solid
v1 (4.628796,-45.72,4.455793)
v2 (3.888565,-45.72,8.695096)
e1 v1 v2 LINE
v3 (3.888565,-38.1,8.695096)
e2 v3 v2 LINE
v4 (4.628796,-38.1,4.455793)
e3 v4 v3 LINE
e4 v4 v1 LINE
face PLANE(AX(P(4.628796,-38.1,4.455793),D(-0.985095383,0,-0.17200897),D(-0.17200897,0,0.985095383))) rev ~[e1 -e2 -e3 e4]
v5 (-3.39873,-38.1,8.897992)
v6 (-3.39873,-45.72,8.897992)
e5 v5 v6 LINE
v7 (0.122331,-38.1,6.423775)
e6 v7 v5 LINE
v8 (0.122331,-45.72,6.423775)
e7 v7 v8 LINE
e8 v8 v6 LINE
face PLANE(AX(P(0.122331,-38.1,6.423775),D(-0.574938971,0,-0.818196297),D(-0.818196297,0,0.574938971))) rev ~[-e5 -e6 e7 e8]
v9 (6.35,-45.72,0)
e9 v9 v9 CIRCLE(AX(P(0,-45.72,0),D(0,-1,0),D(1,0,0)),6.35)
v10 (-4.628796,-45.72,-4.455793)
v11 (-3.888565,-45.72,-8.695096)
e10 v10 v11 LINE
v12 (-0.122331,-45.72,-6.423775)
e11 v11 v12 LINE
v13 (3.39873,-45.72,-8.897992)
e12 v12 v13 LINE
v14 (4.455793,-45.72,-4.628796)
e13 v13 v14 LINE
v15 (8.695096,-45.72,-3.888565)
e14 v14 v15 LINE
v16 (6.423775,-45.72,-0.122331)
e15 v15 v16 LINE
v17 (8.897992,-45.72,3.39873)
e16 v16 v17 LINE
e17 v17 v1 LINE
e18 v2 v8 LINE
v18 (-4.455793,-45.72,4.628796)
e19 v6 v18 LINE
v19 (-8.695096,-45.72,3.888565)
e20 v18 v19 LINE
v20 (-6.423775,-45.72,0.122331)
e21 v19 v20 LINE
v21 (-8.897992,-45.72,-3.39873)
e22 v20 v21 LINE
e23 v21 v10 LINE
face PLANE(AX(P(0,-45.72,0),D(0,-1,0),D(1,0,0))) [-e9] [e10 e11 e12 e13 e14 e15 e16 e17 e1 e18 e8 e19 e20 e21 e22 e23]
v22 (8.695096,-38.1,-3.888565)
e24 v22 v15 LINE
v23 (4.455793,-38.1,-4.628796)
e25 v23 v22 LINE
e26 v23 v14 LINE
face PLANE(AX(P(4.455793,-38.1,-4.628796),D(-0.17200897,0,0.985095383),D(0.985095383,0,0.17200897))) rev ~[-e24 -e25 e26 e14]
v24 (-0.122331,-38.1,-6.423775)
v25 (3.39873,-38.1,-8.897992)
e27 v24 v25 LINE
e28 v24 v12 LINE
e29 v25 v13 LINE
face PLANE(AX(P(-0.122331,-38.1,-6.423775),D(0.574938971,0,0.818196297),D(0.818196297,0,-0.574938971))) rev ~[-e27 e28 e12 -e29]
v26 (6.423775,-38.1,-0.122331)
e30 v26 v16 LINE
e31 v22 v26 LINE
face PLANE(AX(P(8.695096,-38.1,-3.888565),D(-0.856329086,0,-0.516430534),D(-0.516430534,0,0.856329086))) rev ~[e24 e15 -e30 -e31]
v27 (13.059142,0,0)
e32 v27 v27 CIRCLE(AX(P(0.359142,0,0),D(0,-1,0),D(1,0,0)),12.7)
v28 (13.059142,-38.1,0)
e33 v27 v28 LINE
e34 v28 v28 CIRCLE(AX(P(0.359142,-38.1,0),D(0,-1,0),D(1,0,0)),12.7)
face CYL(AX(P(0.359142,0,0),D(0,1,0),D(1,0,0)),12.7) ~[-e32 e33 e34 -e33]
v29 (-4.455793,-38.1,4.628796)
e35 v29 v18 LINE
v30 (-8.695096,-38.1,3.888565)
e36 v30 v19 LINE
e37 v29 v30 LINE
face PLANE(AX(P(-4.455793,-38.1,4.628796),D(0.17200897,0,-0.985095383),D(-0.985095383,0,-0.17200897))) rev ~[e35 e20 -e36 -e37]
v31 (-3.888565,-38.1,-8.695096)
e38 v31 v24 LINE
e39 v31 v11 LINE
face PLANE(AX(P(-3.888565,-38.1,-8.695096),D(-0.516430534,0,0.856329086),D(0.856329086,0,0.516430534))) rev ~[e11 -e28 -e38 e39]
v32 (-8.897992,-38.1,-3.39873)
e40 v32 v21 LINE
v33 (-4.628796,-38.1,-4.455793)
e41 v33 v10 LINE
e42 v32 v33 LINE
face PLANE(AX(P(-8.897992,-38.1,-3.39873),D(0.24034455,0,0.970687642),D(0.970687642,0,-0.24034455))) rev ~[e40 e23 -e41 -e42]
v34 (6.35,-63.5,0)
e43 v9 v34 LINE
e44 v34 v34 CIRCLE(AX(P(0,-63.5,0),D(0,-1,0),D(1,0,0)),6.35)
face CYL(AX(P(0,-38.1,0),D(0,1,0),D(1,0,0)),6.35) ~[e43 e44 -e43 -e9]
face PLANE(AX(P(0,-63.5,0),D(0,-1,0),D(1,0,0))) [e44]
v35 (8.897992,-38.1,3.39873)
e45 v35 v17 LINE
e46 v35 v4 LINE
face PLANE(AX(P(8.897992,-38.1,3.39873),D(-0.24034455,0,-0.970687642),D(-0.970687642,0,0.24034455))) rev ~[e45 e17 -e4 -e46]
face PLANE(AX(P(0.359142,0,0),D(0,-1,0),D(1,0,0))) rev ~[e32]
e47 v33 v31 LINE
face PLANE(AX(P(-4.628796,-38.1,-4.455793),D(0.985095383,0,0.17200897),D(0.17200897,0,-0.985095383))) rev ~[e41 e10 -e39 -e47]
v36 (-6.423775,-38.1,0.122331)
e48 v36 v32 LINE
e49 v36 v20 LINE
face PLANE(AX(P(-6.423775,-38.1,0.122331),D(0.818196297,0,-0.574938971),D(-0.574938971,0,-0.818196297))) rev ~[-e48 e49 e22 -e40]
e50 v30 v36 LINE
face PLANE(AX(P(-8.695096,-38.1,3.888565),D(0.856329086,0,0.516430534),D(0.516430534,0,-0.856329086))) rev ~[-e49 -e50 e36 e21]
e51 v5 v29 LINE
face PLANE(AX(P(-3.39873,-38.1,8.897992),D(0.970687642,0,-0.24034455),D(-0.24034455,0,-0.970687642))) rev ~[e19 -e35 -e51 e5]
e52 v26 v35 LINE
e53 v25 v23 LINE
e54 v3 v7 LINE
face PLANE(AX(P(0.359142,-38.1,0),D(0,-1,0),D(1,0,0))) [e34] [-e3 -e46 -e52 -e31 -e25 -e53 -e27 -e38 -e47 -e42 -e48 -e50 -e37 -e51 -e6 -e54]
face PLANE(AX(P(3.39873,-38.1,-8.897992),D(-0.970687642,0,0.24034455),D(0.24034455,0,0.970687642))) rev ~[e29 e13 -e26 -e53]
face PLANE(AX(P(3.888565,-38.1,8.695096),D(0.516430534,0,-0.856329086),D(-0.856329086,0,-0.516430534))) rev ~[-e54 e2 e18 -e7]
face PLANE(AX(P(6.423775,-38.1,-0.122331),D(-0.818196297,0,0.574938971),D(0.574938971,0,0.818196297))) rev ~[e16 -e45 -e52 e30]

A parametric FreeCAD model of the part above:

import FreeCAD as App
import Part
import Sketcher
from FreeCAD import Vector
Q = App.Units.Quantity

doc = App.newDocument("Part")
body = doc.addObject("PartDesign::Body", "Body")

# Sketch on XZ plane
sketch1 = body.newObject("Sketcher::SketchObject", "Sketch")
sketch1.AttachmentSupport = (doc.getObject("XZ_Plane"), [""])
sketch1.MapMode = "FlatFace"
sketch1.addGeometry(Part.Circle(Vector(0, 0, 0), Vector(0, 0, 1), 13), False)
sketch1.addConstraint([
    Sketcher.Constraint("PointOnObject", 0, 3, -1),
    Sketcher.Constraint("Diameter", 0, Q("1 in")),
    Sketcher.Constraint("DistanceX", -1, 1, 0, 3, Q("0.359142 mm")),
])
pad1 = body.newObject("PartDesign::Pad", "Pad")
pad1.Profile = sketch1
pad1.Length = Q("1.5 in")

# Sketch on XZ plane
sketch2 = body.newObject("Sketcher::SketchObject", "Sketch001")
sketch2.AttachmentSupport = (doc.getObject("XZ_Plane"), [""])
sketch2.MapMode = "FlatFace"
sketch2.AttachmentOffset = App.Placement(Vector(0, 0, 1.5 * 25.4), App.Rotation())
sketch2.addGeometry(Part.Circle(Vector(0, 0, 0), Vector(0, 0, 1), 6), False)
sketch2.addConstraint([
    Sketcher.Constraint("Coincident", 0, 3, -1, 1),
    Sketcher.Constraint("Diameter", 0, Q("0.5 in")),
])
pad2 = body.newObject("PartDesign::Pad", "Pad001")
pad2.Profile = sketch2
pad2.Length = Q("1 in")

# Sketch on XZ plane
sketch3 = body.newObject("Sketcher::SketchObject", "Sketch002")
sketch3.AttachmentSupport = (doc.getObject("XZ_Plane"), [""])
sketch3.MapMode = "FlatFace"
sketch3.AttachmentOffset = App.Placement(Vector(0, 0, 1.5 * 25.4), App.Rotation())
sketch3.addGeometry([
    Part.LineSegment(Vector(-4.5, 4.6, 0), Vector(-8.7, 3.9, 0)),  # 0
    Part.LineSegment(Vector(-8.7, 3.9, 0), Vector(-6.4, 0.1, 0)),  # 1
    Part.LineSegment(Vector(-6.4, 0.1, 0), Vector(-8.9, -3.4, 0)),  # 2
    Part.LineSegment(Vector(-8.9, -3.4, 0), Vector(-4.6, -4.5, 0)),  # 3
    Part.LineSegment(Vector(-4.6, -4.5, 0), Vector(-3.9, -8.7, 0)),  # 4
    Part.LineSegment(Vector(-3.9, -8.7, 0), Vector(-0.1, -6.4, 0)),  # 5
    Part.LineSegment(Vector(-0.1, -6.4, 0), Vector(3.4, -8.9, 0)),  # 6
    Part.LineSegment(Vector(3.4, -8.9, 0), Vector(4.5, -4.6, 0)),  # 7
    Part.LineSegment(Vector(4.5, -4.6, 0), Vector(8.7, -3.9, 0)),  # 8
    Part.LineSegment(Vector(8.7, -3.9, 0), Vector(6.4, -0.1, 0)),  # 9
    Part.LineSegment(Vector(6.4, -0.1, 0), Vector(8.9, 3.4, 0)),  # 10
    Part.LineSegment(Vector(8.9, 3.4, 0), Vector(4.6, 4.5, 0)),  # 11
    Part.LineSegment(Vector(4.6, 4.5, 0), Vector(3.9, 8.7, 0)),  # 12
    Part.LineSegment(Vector(3.9, 8.7, 0), Vector(0.1, 6.4, 0)),  # 13
    Part.LineSegment(Vector(0.1, 6.4, 0), Vector(-3.4, 8.9, 0)),  # 14
    Part.LineSegment(Vector(-3.4, 8.9, 0), Vector(-4.5, 4.6, 0)),  # 15
    Part.Circle(Vector(0, 0, 0), Vector(0, 0, 1), 6.3),  # 16
], False)
sketch3.addConstraint([
    Sketcher.Constraint("Coincident", 0, 2, 1, 1),
    Sketcher.Constraint("Coincident", 1, 2, 2, 1),
    Sketcher.Constraint("Coincident", 2, 2, 3, 1),
    Sketcher.Constraint("Coincident", 3, 2, 4, 1),
    Sketcher.Constraint("Coincident", 4, 2, 5, 1),
    Sketcher.Constraint("Coincident", 5, 2, 6, 1),
    Sketcher.Constraint("Coincident", 6, 2, 7, 1),
    Sketcher.Constraint("Coincident", 7, 2, 8, 1),
    Sketcher.Constraint("Coincident", 8, 2, 9, 1),
    Sketcher.Constraint("Coincident", 9, 2, 10, 1),
    Sketcher.Constraint("Coincident", 10, 2, 11, 1),
    Sketcher.Constraint("Coincident", 11, 2, 12, 1),
    Sketcher.Constraint("Coincident", 12, 2, 13, 1),
    Sketcher.Constraint("Coincident", 13, 2, 14, 1),
    Sketcher.Constraint("Coincident", 14, 2, 15, 1),
    Sketcher.Constraint("Coincident", 15, 2, 0, 1),
    Sketcher.Constraint("Coincident", 16, 3, -1, 1),
    Sketcher.Constraint("Symmetric", 0, 2, 8, 2, -1, 1),
    Sketcher.Constraint("Symmetric", 1, 2, 9, 2, -1, 1),
    Sketcher.Constraint("Symmetric", 2, 2, 10, 2, -1, 1),
    Sketcher.Constraint("Symmetric", 3, 2, 11, 2, -1, 1),
    Sketcher.Constraint("Symmetric", 4, 2, 12, 2, -1, 1),
    Sketcher.Constraint("Symmetric", 5, 2, 13, 2, -1, 1),
    Sketcher.Constraint("Symmetric", 6, 2, 14, 2, -1, 1),
    Sketcher.Constraint("Symmetric", 7, 2, 15, 2, -1, 1),
    Sketcher.Constraint("Perpendicular", 0, 4),
    Sketcher.Constraint("Perpendicular", 1, 5),
    Sketcher.Constraint("Perpendicular", 2, 6),
    Sketcher.Constraint("Perpendicular", 3, 7),
    Sketcher.Constraint("Equal", 0, 2),
    Sketcher.Constraint("Equal", 1, 3),
    Sketcher.Constraint("Equal", 2, 4),
    Sketcher.Constraint("Equal", 3, 5),
    Sketcher.Constraint("Equal", 4, 6),
    Sketcher.Constraint("Equal", 5, 7),
    Sketcher.Constraint("Diameter", 16, Q("0.5 in")),
    Sketcher.Constraint("DistanceX", 0, 2, 3, 2, Q("4.0663 mm")),
    Sketcher.Constraint("DistanceY", 6, 2, 3, 2, Q("4.442199 mm")),
    Sketcher.Constraint("DistanceY", -1, 1, 1, 2, Q("0.122331 mm")),
    Sketcher.Constraint("DistanceY", 2, 2, -1, 1, Q("3.39873 mm")),
    Sketcher.Constraint("DistanceX", 0, 2, 1, 2, Q("2.271321 mm")),
    Sketcher.Constraint("DistanceX", 3, 2, 4, 2, Q("0.740231 mm")),
])
pad3 = body.newObject("PartDesign::Pad", "Pad002")
pad3.Profile = sketch3
pad3.Length = Q("0.3 in")

doc.recompute()
